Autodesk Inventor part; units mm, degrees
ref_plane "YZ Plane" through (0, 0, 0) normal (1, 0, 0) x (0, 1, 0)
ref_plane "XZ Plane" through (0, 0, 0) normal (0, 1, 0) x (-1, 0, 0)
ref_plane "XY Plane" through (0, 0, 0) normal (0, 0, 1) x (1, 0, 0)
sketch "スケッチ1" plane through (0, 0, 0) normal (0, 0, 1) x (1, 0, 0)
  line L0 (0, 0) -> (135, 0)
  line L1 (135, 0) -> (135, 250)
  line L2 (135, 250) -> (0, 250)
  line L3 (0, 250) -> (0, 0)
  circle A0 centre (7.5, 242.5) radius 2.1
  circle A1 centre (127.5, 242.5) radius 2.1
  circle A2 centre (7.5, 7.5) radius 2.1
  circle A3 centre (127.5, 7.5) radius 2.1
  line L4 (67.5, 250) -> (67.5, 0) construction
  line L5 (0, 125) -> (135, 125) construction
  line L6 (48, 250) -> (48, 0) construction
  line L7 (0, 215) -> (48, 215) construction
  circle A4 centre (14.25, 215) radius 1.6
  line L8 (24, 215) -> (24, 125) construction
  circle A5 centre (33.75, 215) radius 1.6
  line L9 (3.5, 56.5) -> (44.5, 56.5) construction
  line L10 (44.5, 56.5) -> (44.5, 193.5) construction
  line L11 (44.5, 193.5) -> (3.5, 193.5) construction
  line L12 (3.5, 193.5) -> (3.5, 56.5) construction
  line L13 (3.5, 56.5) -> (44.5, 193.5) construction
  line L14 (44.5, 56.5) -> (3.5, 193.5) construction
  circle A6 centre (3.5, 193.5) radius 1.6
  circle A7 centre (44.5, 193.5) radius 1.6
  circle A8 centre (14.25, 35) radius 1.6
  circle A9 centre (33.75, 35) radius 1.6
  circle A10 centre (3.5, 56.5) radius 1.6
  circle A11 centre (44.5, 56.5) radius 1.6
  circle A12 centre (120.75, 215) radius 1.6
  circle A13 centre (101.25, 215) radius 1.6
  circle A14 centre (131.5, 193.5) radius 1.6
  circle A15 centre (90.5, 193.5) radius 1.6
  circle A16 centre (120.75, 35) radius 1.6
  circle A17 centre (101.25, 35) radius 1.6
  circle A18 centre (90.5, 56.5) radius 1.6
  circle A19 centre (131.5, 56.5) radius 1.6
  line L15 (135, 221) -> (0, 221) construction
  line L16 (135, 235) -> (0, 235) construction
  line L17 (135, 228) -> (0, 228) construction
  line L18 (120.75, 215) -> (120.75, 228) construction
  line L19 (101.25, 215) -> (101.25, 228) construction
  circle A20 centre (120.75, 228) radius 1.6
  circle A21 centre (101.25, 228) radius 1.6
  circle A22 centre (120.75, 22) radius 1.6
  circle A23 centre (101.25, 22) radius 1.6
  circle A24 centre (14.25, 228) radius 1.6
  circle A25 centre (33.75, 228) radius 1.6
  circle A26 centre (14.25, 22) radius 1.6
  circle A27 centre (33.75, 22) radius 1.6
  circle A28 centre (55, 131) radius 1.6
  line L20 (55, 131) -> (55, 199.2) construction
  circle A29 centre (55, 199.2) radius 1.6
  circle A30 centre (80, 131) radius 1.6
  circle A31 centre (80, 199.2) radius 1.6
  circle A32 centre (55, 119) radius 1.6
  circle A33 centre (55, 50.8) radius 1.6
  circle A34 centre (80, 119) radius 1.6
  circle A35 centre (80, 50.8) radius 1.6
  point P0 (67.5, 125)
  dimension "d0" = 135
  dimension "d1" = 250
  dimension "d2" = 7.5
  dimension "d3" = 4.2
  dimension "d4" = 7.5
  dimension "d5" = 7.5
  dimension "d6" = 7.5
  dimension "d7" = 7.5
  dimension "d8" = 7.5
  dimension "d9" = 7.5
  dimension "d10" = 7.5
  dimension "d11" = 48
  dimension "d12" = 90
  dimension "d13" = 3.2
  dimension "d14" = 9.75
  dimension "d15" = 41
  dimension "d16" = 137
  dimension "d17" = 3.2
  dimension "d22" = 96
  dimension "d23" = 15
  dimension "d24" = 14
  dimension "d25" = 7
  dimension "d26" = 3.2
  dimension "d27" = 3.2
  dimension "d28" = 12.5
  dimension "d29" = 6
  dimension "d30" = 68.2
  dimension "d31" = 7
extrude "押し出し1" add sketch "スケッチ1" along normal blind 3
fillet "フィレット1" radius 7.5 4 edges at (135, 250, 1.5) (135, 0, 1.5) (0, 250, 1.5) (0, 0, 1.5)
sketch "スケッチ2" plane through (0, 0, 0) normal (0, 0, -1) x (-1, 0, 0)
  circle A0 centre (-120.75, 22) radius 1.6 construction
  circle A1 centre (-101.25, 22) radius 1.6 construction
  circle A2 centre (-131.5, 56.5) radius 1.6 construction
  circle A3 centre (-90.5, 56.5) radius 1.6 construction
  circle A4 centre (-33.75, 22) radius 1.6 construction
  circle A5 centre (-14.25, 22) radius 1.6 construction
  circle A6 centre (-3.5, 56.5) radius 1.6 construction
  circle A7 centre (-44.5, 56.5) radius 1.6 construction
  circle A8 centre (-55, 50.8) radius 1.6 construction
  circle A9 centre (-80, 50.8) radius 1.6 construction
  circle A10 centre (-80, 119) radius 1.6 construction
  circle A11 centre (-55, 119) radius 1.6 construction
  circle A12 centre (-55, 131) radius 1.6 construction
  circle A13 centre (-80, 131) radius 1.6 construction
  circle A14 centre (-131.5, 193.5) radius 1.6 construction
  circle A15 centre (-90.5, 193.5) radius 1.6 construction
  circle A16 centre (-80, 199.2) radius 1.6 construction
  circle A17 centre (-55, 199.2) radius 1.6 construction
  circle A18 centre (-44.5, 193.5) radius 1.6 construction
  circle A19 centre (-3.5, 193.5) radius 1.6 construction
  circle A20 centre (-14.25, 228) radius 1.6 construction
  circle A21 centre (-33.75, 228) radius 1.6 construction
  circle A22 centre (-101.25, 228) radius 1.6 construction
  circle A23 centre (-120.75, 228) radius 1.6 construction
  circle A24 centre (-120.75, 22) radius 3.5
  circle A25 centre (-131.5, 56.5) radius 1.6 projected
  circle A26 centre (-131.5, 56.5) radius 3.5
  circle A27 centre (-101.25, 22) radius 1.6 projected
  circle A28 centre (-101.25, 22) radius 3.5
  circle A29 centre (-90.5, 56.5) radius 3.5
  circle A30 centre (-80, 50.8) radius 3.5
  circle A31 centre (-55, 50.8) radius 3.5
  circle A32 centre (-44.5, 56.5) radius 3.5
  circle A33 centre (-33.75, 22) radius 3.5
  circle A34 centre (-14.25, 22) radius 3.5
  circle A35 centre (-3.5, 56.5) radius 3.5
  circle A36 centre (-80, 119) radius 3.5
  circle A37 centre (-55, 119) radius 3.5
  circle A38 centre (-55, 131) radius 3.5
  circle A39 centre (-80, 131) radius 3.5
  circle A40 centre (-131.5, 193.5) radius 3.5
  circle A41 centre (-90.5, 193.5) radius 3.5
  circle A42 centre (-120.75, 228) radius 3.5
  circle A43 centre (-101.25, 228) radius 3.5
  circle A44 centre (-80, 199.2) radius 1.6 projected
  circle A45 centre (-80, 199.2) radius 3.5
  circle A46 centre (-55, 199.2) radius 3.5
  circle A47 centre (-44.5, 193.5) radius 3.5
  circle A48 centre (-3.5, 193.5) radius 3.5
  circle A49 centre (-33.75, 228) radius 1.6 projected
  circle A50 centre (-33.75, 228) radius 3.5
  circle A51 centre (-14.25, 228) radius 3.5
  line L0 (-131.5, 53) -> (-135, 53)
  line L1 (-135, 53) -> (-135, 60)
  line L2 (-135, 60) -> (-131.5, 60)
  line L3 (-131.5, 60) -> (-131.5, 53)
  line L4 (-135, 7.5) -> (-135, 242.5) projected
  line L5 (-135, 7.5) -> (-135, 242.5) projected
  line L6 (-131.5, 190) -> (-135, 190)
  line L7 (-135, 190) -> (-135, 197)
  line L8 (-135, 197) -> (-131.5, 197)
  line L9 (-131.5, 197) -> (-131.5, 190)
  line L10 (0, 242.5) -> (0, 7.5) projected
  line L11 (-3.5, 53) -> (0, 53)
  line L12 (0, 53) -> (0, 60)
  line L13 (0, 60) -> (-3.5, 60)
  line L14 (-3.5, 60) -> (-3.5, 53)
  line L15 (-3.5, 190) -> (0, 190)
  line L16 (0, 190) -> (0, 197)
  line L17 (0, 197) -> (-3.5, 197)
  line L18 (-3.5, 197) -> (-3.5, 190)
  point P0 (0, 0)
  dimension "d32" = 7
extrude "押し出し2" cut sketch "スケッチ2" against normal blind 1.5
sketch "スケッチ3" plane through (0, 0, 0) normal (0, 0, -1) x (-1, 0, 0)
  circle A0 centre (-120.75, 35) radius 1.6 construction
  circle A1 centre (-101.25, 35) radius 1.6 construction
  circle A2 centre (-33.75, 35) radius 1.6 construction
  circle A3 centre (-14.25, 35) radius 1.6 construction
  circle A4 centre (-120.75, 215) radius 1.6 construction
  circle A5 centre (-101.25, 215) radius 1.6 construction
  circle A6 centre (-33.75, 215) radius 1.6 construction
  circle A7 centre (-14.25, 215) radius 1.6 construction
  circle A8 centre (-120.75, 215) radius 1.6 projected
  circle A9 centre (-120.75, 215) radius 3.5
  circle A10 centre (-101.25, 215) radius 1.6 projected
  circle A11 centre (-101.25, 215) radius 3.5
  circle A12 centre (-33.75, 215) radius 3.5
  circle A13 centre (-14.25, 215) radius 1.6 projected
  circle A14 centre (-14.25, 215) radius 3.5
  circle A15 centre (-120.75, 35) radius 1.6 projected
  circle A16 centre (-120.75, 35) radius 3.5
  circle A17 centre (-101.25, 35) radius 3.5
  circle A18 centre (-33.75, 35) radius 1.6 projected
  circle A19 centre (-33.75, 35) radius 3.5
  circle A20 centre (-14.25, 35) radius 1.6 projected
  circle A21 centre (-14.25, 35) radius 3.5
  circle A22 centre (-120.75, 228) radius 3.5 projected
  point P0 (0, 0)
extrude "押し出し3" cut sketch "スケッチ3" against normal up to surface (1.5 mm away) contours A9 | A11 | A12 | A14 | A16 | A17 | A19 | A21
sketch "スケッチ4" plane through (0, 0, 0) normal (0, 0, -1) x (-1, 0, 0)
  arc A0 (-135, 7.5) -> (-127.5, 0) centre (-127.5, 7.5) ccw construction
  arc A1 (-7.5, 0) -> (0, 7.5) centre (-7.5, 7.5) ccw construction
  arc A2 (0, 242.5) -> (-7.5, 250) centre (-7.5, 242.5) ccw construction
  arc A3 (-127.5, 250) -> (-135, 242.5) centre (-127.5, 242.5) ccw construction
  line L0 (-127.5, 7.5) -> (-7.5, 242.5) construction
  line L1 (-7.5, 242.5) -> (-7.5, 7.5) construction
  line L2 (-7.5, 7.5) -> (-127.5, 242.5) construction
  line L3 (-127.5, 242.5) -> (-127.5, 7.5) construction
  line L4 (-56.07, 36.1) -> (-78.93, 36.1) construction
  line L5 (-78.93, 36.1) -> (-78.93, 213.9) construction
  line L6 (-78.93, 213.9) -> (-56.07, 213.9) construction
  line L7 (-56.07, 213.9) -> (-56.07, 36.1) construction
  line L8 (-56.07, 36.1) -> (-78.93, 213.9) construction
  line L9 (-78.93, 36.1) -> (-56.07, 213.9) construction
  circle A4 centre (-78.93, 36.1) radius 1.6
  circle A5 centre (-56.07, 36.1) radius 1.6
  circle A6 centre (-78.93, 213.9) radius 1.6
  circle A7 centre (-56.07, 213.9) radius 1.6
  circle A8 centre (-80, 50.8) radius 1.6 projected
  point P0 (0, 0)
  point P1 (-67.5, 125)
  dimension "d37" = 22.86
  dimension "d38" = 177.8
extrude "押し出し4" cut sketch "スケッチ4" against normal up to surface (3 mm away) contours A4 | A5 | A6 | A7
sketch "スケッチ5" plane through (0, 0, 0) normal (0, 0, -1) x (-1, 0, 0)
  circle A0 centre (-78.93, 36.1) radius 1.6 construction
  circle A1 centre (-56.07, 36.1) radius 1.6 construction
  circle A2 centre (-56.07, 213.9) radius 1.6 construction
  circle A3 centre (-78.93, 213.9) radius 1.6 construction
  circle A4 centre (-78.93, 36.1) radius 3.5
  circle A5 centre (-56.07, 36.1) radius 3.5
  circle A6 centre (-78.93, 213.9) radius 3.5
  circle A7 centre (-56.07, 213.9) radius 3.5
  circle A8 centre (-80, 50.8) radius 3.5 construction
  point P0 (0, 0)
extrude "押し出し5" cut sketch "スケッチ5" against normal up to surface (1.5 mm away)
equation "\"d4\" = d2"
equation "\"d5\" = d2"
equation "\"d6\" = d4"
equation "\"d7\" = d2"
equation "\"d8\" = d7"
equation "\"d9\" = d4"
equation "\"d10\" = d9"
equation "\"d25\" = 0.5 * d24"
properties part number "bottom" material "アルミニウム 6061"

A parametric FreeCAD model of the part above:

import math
import FreeCAD as App
import Part
import Sketcher
Q = App.Units.Quantity


def edges_at(feature, points):
    """Names of the edges that pass closest to the given points."""
    edges = feature.Shape.Edges
    near = lambda p: min(range(len(edges)), key=lambda i: edges[i].distToShape(Part.Vertex(*p))[0])
    return sorted({f"Edge{near(p) + 1}" for p in points})

doc = App.newDocument("Part")
body = doc.addObject("PartDesign::Body", "Body")

# Sketch on XY plane
sketch1 = body.newObject("Sketcher::SketchObject", "Sketch")
sketch1.AttachmentSupport = (doc.getObject("XY_Plane"), [""])
sketch1.MapMode = "FlatFace"
sketch1.addGeometry(Part.LineSegment(App.Vector(0, 250, 0), App.Vector(0, 0, 0)), False)
sketch1.addGeometry(Part.LineSegment(App.Vector(0, 0, 0), App.Vector(135, 0, 0)), False)
sketch1.addGeometry(Part.LineSegment(App.Vector(135, 0, 0), App.Vector(135, 250, 0)), False)
sketch1.addGeometry(Part.LineSegment(App.Vector(135, 250, 0), App.Vector(0, 250, 0)), False)
sketch1.addGeometry(Part.Circle(App.Vector(7.5, 7.5, 0), App.Vector(0, 0, 1), 2.1), False)
sketch1.addGeometry(Part.Circle(App.Vector(14.2, 22, 0), App.Vector(0, 0, 1), 1.6), False)
sketch1.addGeometry(Part.Circle(App.Vector(14.2, 35, 0), App.Vector(0, 0, 1), 1.6), False)
sketch1.addGeometry(Part.Circle(App.Vector(3.5, 56.5, 0), App.Vector(0, 0, 1), 1.6), False)
sketch1.addGeometry(Part.Circle(App.Vector(33.8, 22, 0), App.Vector(0, 0, 1), 1.6), False)
sketch1.addGeometry(Part.Circle(App.Vector(33.8, 35, 0), App.Vector(0, 0, 1), 1.6), False)
sketch1.addGeometry(Part.Circle(App.Vector(44.5, 56.5, 0), App.Vector(0, 0, 1), 1.6), False)
sketch1.addGeometry(Part.Circle(App.Vector(55, 50.8, 0), App.Vector(0, 0, 1), 1.6), False)
sketch1.addGeometry(Part.Circle(App.Vector(55, 119, 0), App.Vector(0, 0, 1), 1.6), False)
sketch1.addGeometry(Part.Circle(App.Vector(80, 50.8, 0), App.Vector(0, 0, 1), 1.6), False)
sketch1.addGeometry(Part.Circle(App.Vector(90.5, 56.5, 0), App.Vector(0, 0, 1), 1.6), False)
sketch1.addGeometry(Part.Circle(App.Vector(101.2, 22, 0), App.Vector(0, 0, 1), 1.6), False)
sketch1.addGeometry(Part.Circle(App.Vector(127.5, 7.5, 0), App.Vector(0, 0, 1), 2.1), False)
sketch1.addGeometry(Part.Circle(App.Vector(120.8, 22, 0), App.Vector(0, 0, 1), 1.6), False)
sketch1.addGeometry(Part.Circle(App.Vector(101.2, 35, 0), App.Vector(0, 0, 1), 1.6), False)
sketch1.addGeometry(Part.Circle(App.Vector(120.8, 35, 0), App.Vector(0, 0, 1), 1.6), False)
sketch1.addGeometry(Part.Circle(App.Vector(131.5, 56.5, 0), App.Vector(0, 0, 1), 1.6), False)
sketch1.addGeometry(Part.Circle(App.Vector(80, 119, 0), App.Vector(0, 0, 1), 1.6), False)
sketch1.addGeometry(Part.Circle(App.Vector(55, 131, 0), App.Vector(0, 0, 1), 1.6), False)
sketch1.addGeometry(Part.Circle(App.Vector(3.5, 193.5, 0), App.Vector(0, 0, 1), 1.6), False)
sketch1.addGeometry(Part.Circle(App.Vector(14.2, 215, 0), App.Vector(0, 0, 1), 1.6), False)
sketch1.addGeometry(Part.Circle(App.Vector(14.2, 228, 0), App.Vector(0, 0, 1), 1.6), False)
sketch1.addGeometry(Part.Circle(App.Vector(7.5, 242.5, 0), App.Vector(0, 0, 1), 2.1), False)
sketch1.addGeometry(Part.Circle(App.Vector(44.5, 193.5, 0), App.Vector(0, 0, 1), 1.6), False)
sketch1.addGeometry(Part.Circle(App.Vector(33.8, 215, 0), App.Vector(0, 0, 1), 1.6), False)
sketch1.addGeometry(Part.Circle(App.Vector(55, 199.2, 0), App.Vector(0, 0, 1), 1.6), False)
sketch1.addGeometry(Part.Circle(App.Vector(33.8, 228, 0), App.Vector(0, 0, 1), 1.6), False)
sketch1.addGeometry(Part.Circle(App.Vector(80, 131, 0), App.Vector(0, 0, 1), 1.6), False)
sketch1.addGeometry(Part.Circle(App.Vector(80, 199.2, 0), App.Vector(0, 0, 1), 1.6), False)
sketch1.addGeometry(Part.Circle(App.Vector(90.5, 193.5, 0), App.Vector(0, 0, 1), 1.6), False)
sketch1.addGeometry(Part.Circle(App.Vector(101.2, 215, 0), App.Vector(0, 0, 1), 1.6), False)
sketch1.addGeometry(Part.Circle(App.Vector(131.5, 193.5, 0), App.Vector(0, 0, 1), 1.6), False)
sketch1.addGeometry(Part.Circle(App.Vector(120.8, 215, 0), App.Vector(0, 0, 1), 1.6), False)
sketch1.addGeometry(Part.Circle(App.Vector(101.2, 228, 0), App.Vector(0, 0, 1), 1.6), False)
sketch1.addGeometry(Part.Circle(App.Vector(120.8, 228, 0), App.Vector(0, 0, 1), 1.6), False)
sketch1.addGeometry(Part.Circle(App.Vector(127.5, 242.5, 0), App.Vector(0, 0, 1), 2.1), False)
sketch1.addConstraint(Sketcher.Constraint("Coincident", 0, 2, 1, 1))
sketch1.addConstraint(Sketcher.Constraint("Coincident", 1, 2, 2, 1))
sketch1.addConstraint(Sketcher.Constraint("Coincident", 2, 2, 3, 1))
sketch1.addConstraint(Sketcher.Constraint("Coincident", 3, 2, 0, 1))
sketch1.addConstraint(Sketcher.Constraint("Vertical", 0))
sketch1.addConstraint(Sketcher.Constraint("Horizontal", 1))
sketch1.addConstraint(Sketcher.Constraint("Vertical", 2))
sketch1.addConstraint(Sketcher.Constraint("Horizontal", 3))
sketch1.addConstraint(Sketcher.Constraint("Coincident", 0, 2, -1, 1))
sketch1.addConstraint(Sketcher.Constraint("Equal", 5, 6))
sketch1.addConstraint(Sketcher.Constraint("Equal", 6, 7))
sketch1.addConstraint(Sketcher.Constraint("Equal", 7, 8))
sketch1.addConstraint(Sketcher.Constraint("Equal", 8, 9))
sketch1.addConstraint(Sketcher.Constraint("Equal", 9, 10))
sketch1.addConstraint(Sketcher.Constraint("Equal", 10, 11))
sketch1.addConstraint(Sketcher.Constraint("Equal", 11, 12))
sketch1.addConstraint(Sketcher.Constraint("Equal", 12, 13))
sketch1.addConstraint(Sketcher.Constraint("Equal", 13, 14))
sketch1.addConstraint(Sketcher.Constraint("Equal", 14, 15))
sketch1.addConstraint(Sketcher.Constraint("Equal", 4, 16))
sketch1.addConstraint(Sketcher.Constraint("Equal", 15, 17))
sketch1.addConstraint(Sketcher.Constraint("Equal", 17, 18))
sketch1.addConstraint(Sketcher.Constraint("Equal", 18, 19))
sketch1.addConstraint(Sketcher.Constraint("Equal", 19, 20))
sketch1.addConstraint(Sketcher.Constraint("Equal", 20, 21))
sketch1.addConstraint(Sketcher.Constraint("Equal", 21, 22))
sketch1.addConstraint(Sketcher.Constraint("Equal", 22, 23))
sketch1.addConstraint(Sketcher.Constraint("Equal", 23, 24))
sketch1.addConstraint(Sketcher.Constraint("Equal", 24, 25))
sketch1.addConstraint(Sketcher.Constraint("Equal", 16, 26))
sketch1.addConstraint(Sketcher.Constraint("Equal", 25, 27))
sketch1.addConstraint(Sketcher.Constraint("Equal", 27, 28))
sketch1.addConstraint(Sketcher.Constraint("Equal", 28, 29))
sketch1.addConstraint(Sketcher.Constraint("Equal", 29, 30))
sketch1.addConstraint(Sketcher.Constraint("Equal", 30, 31))
sketch1.addConstraint(Sketcher.Constraint("Equal", 31, 32))
sketch1.addConstraint(Sketcher.Constraint("Equal", 32, 33))
sketch1.addConstraint(Sketcher.Constraint("Equal", 33, 34))
sketch1.addConstraint(Sketcher.Constraint("Equal", 34, 35))
sketch1.addConstraint(Sketcher.Constraint("Equal", 35, 36))
sketch1.addConstraint(Sketcher.Constraint("Equal", 36, 37))
sketch1.addConstraint(Sketcher.Constraint("Equal", 37, 38))
sketch1.addConstraint(Sketcher.Constraint("Equal", 26, 39))
sketch1.addConstraint(Sketcher.Constraint("Horizontal", 5, 3, 8, 3))
sketch1.addConstraint(Sketcher.Constraint("Horizontal", 6, 3, 9, 3))
sketch1.addConstraint(Sketcher.Constraint("Horizontal", 7, 3, 10, 3))
sketch1.addConstraint(Sketcher.Constraint("Horizontal", 11, 3, 13, 3))
sketch1.addConstraint(Sketcher.Constraint("Horizontal", 10, 3, 14, 3))
sketch1.addConstraint(Sketcher.Constraint("Horizontal", 8, 3, 15, 3))
sketch1.addConstraint(Sketcher.Constraint("Horizontal", 4, 3, 16, 3))
sketch1.addConstraint(Sketcher.Constraint("Horizontal", 15, 3, 17, 3))
sketch1.addConstraint(Sketcher.Constraint("Horizontal", 9, 3, 18, 3))
sketch1.addConstraint(Sketcher.Constraint("Horizontal", 18, 3, 19, 3))
sketch1.addConstraint(Sketcher.Constraint("Horizontal", 14, 3, 20, 3))
sketch1.addConstraint(Sketcher.Constraint("Horizontal", 12, 3, 21, 3))
sketch1.addConstraint(Sketcher.Constraint("Horizontal", 23, 3, 27, 3))
sketch1.addConstraint(Sketcher.Constraint("Horizontal", 24, 3, 28, 3))
sketch1.addConstraint(Sketcher.Constraint("Horizontal", 25, 3, 30, 3))
sketch1.addConstraint(Sketcher.Constraint("Horizontal", 22, 3, 31, 3))
sketch1.addConstraint(Sketcher.Constraint("Horizontal", 29, 3, 32, 3))
sketch1.addConstraint(Sketcher.Constraint("Horizontal", 27, 3, 33, 3))
sketch1.addConstraint(Sketcher.Constraint("Horizontal", 28, 3, 34, 3))
sketch1.addConstraint(Sketcher.Constraint("Horizontal", 33, 3, 35, 3))
sketch1.addConstraint(Sketcher.Constraint("Horizontal", 34, 3, 36, 3))
sketch1.addConstraint(Sketcher.Constraint("Horizontal", 30, 3, 37, 3))
sketch1.addConstraint(Sketcher.Constraint("Horizontal", 37, 3, 38, 3))
sketch1.addConstraint(Sketcher.Constraint("Horizontal", 26, 3, 39, 3))
sketch1.addConstraint(Sketcher.Constraint("Vertical", 5, 3, 6, 3))
sketch1.addConstraint(Sketcher.Constraint("Vertical", 8, 3, 9, 3))
sketch1.addConstraint(Sketcher.Constraint("Vertical", 11, 3, 12, 3))
sketch1.addConstraint(Sketcher.Constraint("Vertical", 15, 3, 18, 3))
sketch1.addConstraint(Sketcher.Constraint("Vertical", 17, 3, 19, 3))
sketch1.addConstraint(Sketcher.Constraint("Vertical", 13, 3, 21, 3))
sketch1.addConstraint(Sketcher.Constraint("Vertical", 12, 3, 22, 3))
sketch1.addConstraint(Sketcher.Constraint("Vertical", 7, 3, 23, 3))
sketch1.addConstraint(Sketcher.Constraint("Vertical", 6, 3, 24, 3))
sketch1.addConstraint(Sketcher.Constraint("Vertical", 24, 3, 25, 3))
sketch1.addConstraint(Sketcher.Constraint("Vertical", 4, 3, 26, 3))
sketch1.addConstraint(Sketcher.Constraint("Vertical", 10, 3, 27, 3))
sketch1.addConstraint(Sketcher.Constraint("Vertical", 9, 3, 28, 3))
sketch1.addConstraint(Sketcher.Constraint("Vertical", 22, 3, 29, 3))
sketch1.addConstraint(Sketcher.Constraint("Vertical", 28, 3, 30, 3))
sketch1.addConstraint(Sketcher.Constraint("Vertical", 21, 3, 31, 3))
sketch1.addConstraint(Sketcher.Constraint("Vertical", 31, 3, 32, 3))
sketch1.addConstraint(Sketcher.Constraint("Vertical", 14, 3, 33, 3))
sketch1.addConstraint(Sketcher.Constraint("Vertical", 18, 3, 34, 3))
sketch1.addConstraint(Sketcher.Constraint("Vertical", 20, 3, 35, 3))
sketch1.addConstraint(Sketcher.Constraint("Vertical", 19, 3, 36, 3))
sketch1.addConstraint(Sketcher.Constraint("Vertical", 34, 3, 37, 3))
sketch1.addConstraint(Sketcher.Constraint("Vertical", 36, 3, 38, 3))
sketch1.addConstraint(Sketcher.Constraint("Vertical", 16, 3, 39, 3))
sketch1.addConstraint(Sketcher.Constraint("Diameter", 4, Q("4.2 mm")))
sketch1.addConstraint(Sketcher.Constraint("Diameter", 5, Q("3.2 mm")))
sketch1.addConstraint(Sketcher.Constraint("DistanceX", 1, 1, 1, 2, Q("135 mm")))
sketch1.addConstraint(Sketcher.Constraint("DistanceY", 0, 2, 0, 1, Q("250 mm")))
sketch1.addConstraint(Sketcher.Constraint("DistanceX", 7, 3, 10, 3, Q("41 mm")))
sketch1.addConstraint(Sketcher.Constraint("DistanceX", 14, 3, 20, 3, Q("41 mm")))
sketch1.addConstraint(Sketcher.Constraint("DistanceY", 7, 3, 23, 3, Q("137 mm")))
sketch1.addConstraint(Sketcher.Constraint("DistanceY", 12, 3, 24, 3, Q("96 mm")))
sketch1.addConstraint(Sketcher.Constraint("DistanceX", -1, 1, 4, 3, Q("7.5 mm")))
sketch1.addConstraint(Sketcher.Constraint("DistanceY", -1, 1, 4, 3, Q("7.5 mm")))
sketch1.addConstraint(Sketcher.Constraint("DistanceY", 11, 3, 12, 3, Q("68.2 mm")))
sketch1.addConstraint(Sketcher.Constraint("DistanceY", 31, 3, 29, 3, Q("68.2 mm")))
sketch1.addConstraint(Sketcher.Constraint("DistanceX", 16, 3, 1, 2, Q("7.5 mm")))
sketch1.addConstraint(Sketcher.Constraint("DistanceY", 39, 3, 2, 2, Q("7.5 mm")))
sketch1.addConstraint(Sketcher.Constraint("DistanceY", -1, 1, 5, 3, Q("22 mm")))
sketch1.addConstraint(Sketcher.Constraint("DistanceY", -1, 1, 6, 3, Q("35 mm")))
sketch1.addConstraint(Sketcher.Constraint("DistanceX", -1, 1, 11, 3, Q("55 mm")))
sketch1.addConstraint(Sketcher.Constraint("DistanceY", -1, 1, 12, 3, Q("119 mm")))
sketch1.addConstraint(Sketcher.Constraint("DistanceX", -1, 1, 13, 3, Q("80 mm")))
sketch1.addConstraint(Sketcher.Constraint("DistanceY", -1, 1, 22, 3, Q("131 mm")))
sketch1.addConstraint(Sketcher.Constraint("DistanceY", -1, 1, 25, 3, Q("228 mm")))
sketch1.addConstraint(Sketcher.Constraint("DistanceX", 7, 3, 4, 3, Q("4 mm")))
sketch1.addConstraint(Sketcher.Constraint("DistanceY", 4, 3, 7, 3, Q("49 mm")))
sketch1.addConstraint(Sketcher.Constraint("DistanceX", 10, 3, 14, 3, Q("46 mm")))
sketch1.addConstraint(Sketcher.Constraint("DistanceX", 5, 3, 8, 3, Q("19.5 mm")))
sketch1.addConstraint(Sketcher.Constraint("DistanceX", 8, 3, 15, 3, Q("67.5 mm")))
sketch1.addConstraint(Sketcher.Constraint("DistanceX", 15, 3, 17, 3, Q("19.5 mm")))
sketch1.addConstraint(Sketcher.Constraint("DistanceX", -1, 1, 5, 3, Q("14.25 mm")))
pad1 = body.newObject("PartDesign::Pad", "Pad")
pad1.Profile = sketch1
pad1.Length = 3
doc.recompute()

fillet = body.newObject("PartDesign::Fillet", "Fillet")
fillet.Base = (pad1, edges_at(pad1, [
    (135, 250, 1.5),
    (135, 0, 1.5),
    (0, 250, 1.5),
    (0, 0, 1.5),
]))
fillet.Radius = 7.5

# Sketch on XY plane
sketch2 = body.newObject("Sketcher::SketchObject", "Sketch001")
sketch2.AttachmentSupport = (doc.getObject("XY_Plane"), [""])
sketch2.MapMode = "FlatFace"
sketch2.addGeometry(Part.Circle(App.Vector(120.8, 22, 0), App.Vector(0, 0, 1), 3.5), False)
sketch2.addGeometry(Part.LineSegment(App.Vector(131.5, 60, 0), App.Vector(135, 60, 0)), False)
sketch2.addGeometry(Part.LineSegment(App.Vector(135, 60, 0), App.Vector(135, 53, 0)), False)
sketch2.addGeometry(Part.LineSegment(App.Vector(135, 53, 0), App.Vector(131.5, 53, 0)), False)
sketch2.addGeometry(Part.ArcOfCircle(Part.Circle(App.Vector(131.5, 56.5, 0), App.Vector(0, 0, 1), 3.5), math.radians(90), math.radians(270)), False)
sketch2.addGeometry(Part.LineSegment(App.Vector(135, 190, 0), App.Vector(131.5, 190, 0)), False)
sketch2.addGeometry(Part.ArcOfCircle(Part.Circle(App.Vector(131.5, 193.5, 0), App.Vector(0, 0, 1), 3.5), math.radians(90), math.radians(270)), False)
sketch2.addGeometry(Part.LineSegment(App.Vector(131.5, 197, 0), App.Vector(135, 197, 0)), False)
sketch2.addGeometry(Part.LineSegment(App.Vector(135, 197, 0), App.Vector(135, 190, 0)), False)
sketch2.addGeometry(Part.Circle(App.Vector(101.2, 22, 0), App.Vector(0, 0, 1), 3.5), False)
sketch2.addGeometry(Part.Circle(App.Vector(101.2, 22, 0), App.Vector(0, 0, 1), 1.6), False)
sketch2.addGeometry(Part.Circle(App.Vector(90.5, 56.5, 0), App.Vector(0, 0, 1), 3.5), False)
sketch2.addGeometry(Part.Circle(App.Vector(80, 50.8, 0), App.Vector(0, 0, 1), 3.5), False)
sketch2.addGeometry(Part.Circle(App.Vector(55, 50.8, 0), App.Vector(0, 0, 1), 3.5), False)
sketch2.addGeometry(Part.Circle(App.Vector(44.5, 56.5, 0), App.Vector(0, 0, 1), 3.5), False)
sketch2.addGeometry(Part.Circle(App.Vector(33.8, 22, 0), App.Vector(0, 0, 1), 3.5), False)
sketch2.addGeometry(Part.Circle(App.Vector(14.2, 22, 0), App.Vector(0, 0, 1), 3.5), False)
sketch2.addGeometry(Part.LineSegment(App.Vector(0, 53, 0), App.Vector(0, 60, 0)), False)
sketch2.addGeometry(Part.LineSegment(App.Vector(0, 60, 0), App.Vector(3.5, 60, 0)), False)
sketch2.addGeometry(Part.ArcOfCircle(Part.Circle(App.Vector(3.5, 56.5, 0), App.Vector(0, 0, 1), 3.5), math.radians(-90), math.radians(90)), False)
sketch2.addGeometry(Part.LineSegment(App.Vector(3.5, 53, 0), App.Vector(0, 53, 0)), False)
sketch2.addGeometry(Part.LineSegment(App.Vector(3.5, 190, 0), App.Vector(0, 190, 0)), False)
sketch2.addGeometry(Part.LineSegment(App.Vector(0, 190, 0), App.Vector(0, 197, 0)), False)
sketch2.addGeometry(Part.LineSegment(App.Vector(0, 197, 0), App.Vector(3.5, 197, 0)), False)
sketch2.addGeometry(Part.ArcOfCircle(Part.Circle(App.Vector(3.5, 193.5, 0), App.Vector(0, 0, 1), 3.5), math.radians(-90), math.radians(90)), False)
sketch2.addGeometry(Part.Circle(App.Vector(80, 119, 0), App.Vector(0, 0, 1), 3.5), False)
sketch2.addGeometry(Part.Circle(App.Vector(55, 119, 0), App.Vector(0, 0, 1), 3.5), False)
sketch2.addGeometry(Part.Circle(App.Vector(55, 131, 0), App.Vector(0, 0, 1), 3.5), False)
sketch2.addGeometry(Part.Circle(App.Vector(80, 131, 0), App.Vector(0, 0, 1), 3.5), False)
sketch2.addGeometry(Part.Circle(App.Vector(90.5, 193.5, 0), App.Vector(0, 0, 1), 3.5), False)
sketch2.addGeometry(Part.Circle(App.Vector(120.8, 228, 0), App.Vector(0, 0, 1), 3.5), False)
sketch2.addGeometry(Part.Circle(App.Vector(101.2, 228, 0), App.Vector(0, 0, 1), 3.5), False)
sketch2.addGeometry(Part.Circle(App.Vector(80, 199.2, 0), App.Vector(0, 0, 1), 3.5), False)
sketch2.addGeometry(Part.Circle(App.Vector(80, 199.2, 0), App.Vector(0, 0, 1), 1.6), False)
sketch2.addGeometry(Part.Circle(App.Vector(55, 199.2, 0), App.Vector(0, 0, 1), 3.5), False)
sketch2.addGeometry(Part.Circle(App.Vector(44.5, 193.5, 0), App.Vector(0, 0, 1), 3.5), False)
sketch2.addGeometry(Part.Circle(App.Vector(33.8, 228, 0), App.Vector(0, 0, 1), 3.5), False)
sketch2.addGeometry(Part.Circle(App.Vector(33.8, 228, 0), App.Vector(0, 0, 1), 1.6), False)
sketch2.addGeometry(Part.Circle(App.Vector(14.2, 228, 0), App.Vector(0, 0, 1), 3.5), False)
sketch2.addConstraint(Sketcher.Constraint("Coincident", 1, 2, 2, 1))
sketch2.addConstraint(Sketcher.Constraint("Coincident", 2, 2, 3, 1))
sketch2.addConstraint(Sketcher.Constraint("Tangent", 3, 2, 4, 2))
sketch2.addConstraint(Sketcher.Constraint("Tangent", 4, 1, 1, 1))
sketch2.addConstraint(Sketcher.Constraint("Tangent", 5, 2, 6, 2))
sketch2.addConstraint(Sketcher.Constraint("Tangent", 6, 1, 7, 1))
sketch2.addConstraint(Sketcher.Constraint("Coincident", 7, 2, 8, 1))
sketch2.addConstraint(Sketcher.Constraint("Coincident", 8, 2, 5, 1))
sketch2.addConstraint(Sketcher.Constraint("Coincident", 17, 2, 18, 1))
sketch2.addConstraint(Sketcher.Constraint("Tangent", 18, 2, 19, 2))
sketch2.addConstraint(Sketcher.Constraint("Tangent", 19, 1, 20, 1))
sketch2.addConstraint(Sketcher.Constraint("Coincident", 20, 2, 17, 1))
sketch2.addConstraint(Sketcher.Constraint("Coincident", 21, 2, 22, 1))
sketch2.addConstraint(Sketcher.Constraint("Coincident", 22, 2, 23, 1))
sketch2.addConstraint(Sketcher.Constraint("Tangent", 23, 2, 24, 2))
sketch2.addConstraint(Sketcher.Constraint("Tangent", 24, 1, 21, 1))
sketch2.addConstraint(Sketcher.Constraint("Horizontal", 1))
sketch2.addConstraint(Sketcher.Constraint("Vertical", 2))
sketch2.addConstraint(Sketcher.Constraint("Horizontal", 3))
sketch2.addConstraint(Sketcher.Constraint("Horizontal", 5))
sketch2.addConstraint(Sketcher.Constraint("Horizontal", 7))
sketch2.addConstraint(Sketcher.Constraint("Vertical", 8))
sketch2.addConstraint(Sketcher.Constraint("Vertical", 17))
sketch2.addConstraint(Sketcher.Constraint("Horizontal", 18))
sketch2.addConstraint(Sketcher.Constraint("Horizontal", 20))
sketch2.addConstraint(Sketcher.Constraint("Horizontal", 21))
sketch2.addConstraint(Sketcher.Constraint("Vertical", 22))
sketch2.addConstraint(Sketcher.Constraint("Horizontal", 23))
sketch2.addConstraint(Sketcher.Constraint("Coincident", 10, 3, 9, 3))
sketch2.addConstraint(Sketcher.Constraint("Coincident", 33, 3, 32, 3))
sketch2.addConstraint(Sketcher.Constraint("Coincident", 37, 3, 36, 3))
sketch2.addConstraint(Sketcher.Constraint("Equal", 0, 4))
sketch2.addConstraint(Sketcher.Constraint("Equal", 4, 6))
sketch2.addConstraint(Sketcher.Constraint("Equal", 6, 9))
sketch2.addConstraint(Sketcher.Constraint("Equal", 9, 11))
sketch2.addConstraint(Sketcher.Constraint("Equal", 11, 12))
sketch2.addConstraint(Sketcher.Constraint("Equal", 12, 13))
sketch2.addConstraint(Sketcher.Constraint("Equal", 13, 14))
sketch2.addConstraint(Sketcher.Constraint("Equal", 14, 15))
sketch2.addConstraint(Sketcher.Constraint("Equal", 15, 16))
sketch2.addConstraint(Sketcher.Constraint("Equal", 16, 19))
sketch2.addConstraint(Sketcher.Constraint("Equal", 19, 24))
sketch2.addConstraint(Sketcher.Constraint("Equal", 24, 25))
sketch2.addConstraint(Sketcher.Constraint("Equal", 25, 26))
sketch2.addConstraint(Sketcher.Constraint("Equal", 26, 27))
sketch2.addConstraint(Sketcher.Constraint("Equal", 27, 28))
sketch2.addConstraint(Sketcher.Constraint("Equal", 28, 29))
sketch2.addConstraint(Sketcher.Constraint("Equal", 29, 30))
sketch2.addConstraint(Sketcher.Constraint("Equal", 30, 31))
sketch2.addConstraint(Sketcher.Constraint("Equal", 31, 32))
sketch2.addConstraint(Sketcher.Constraint("Equal", 10, 33))
sketch2.addConstraint(Sketcher.Constraint("Equal", 32, 34))
sketch2.addConstraint(Sketcher.Constraint("Equal", 34, 35))
sketch2.addConstraint(Sketcher.Constraint("Equal", 35, 36))
sketch2.addConstraint(Sketcher.Constraint("Equal", 33, 37))
sketch2.addConstraint(Sketcher.Constraint("Equal", 36, 38))
sketch2.addConstraint(Sketcher.Constraint("PointOnObject", 17, 2, -2))
sketch2.addConstraint(Sketcher.Constraint("PointOnObject", 21, 2, -2))
sketch2.addConstraint(Sketcher.Constraint("Horizontal", 0, 3, 9, 3))
sketch2.addConstraint(Sketcher.Constraint("Horizontal", 4, 3, 11, 3))
sketch2.addConstraint(Sketcher.Constraint("Horizontal", 12, 3, 13, 3))
sketch2.addConstraint(Sketcher.Constraint("Horizontal", 11, 3, 14, 3))
sketch2.addConstraint(Sketcher.Constraint("Horizontal", 10, 3, 15, 3))
sketch2.addConstraint(Sketcher.Constraint("Horizontal", 15, 3, 16, 3))
sketch2.addConstraint(Sketcher.Constraint("Horizontal", 14, 3, 19, 3))
sketch2.addConstraint(Sketcher.Constraint("Horizontal", 6, 3, 24, 3))
sketch2.addConstraint(Sketcher.Constraint("Horizontal", 25, 3, 26, 3))
sketch2.addConstraint(Sketcher.Constraint("Horizontal", 27, 3, 28, 3))
sketch2.addConstraint(Sketcher.Constraint("Horizontal", 24, 3, 29, 3))
sketch2.addConstraint(Sketcher.Constraint("Horizontal", 30, 3, 31, 3))
sketch2.addConstraint(Sketcher.Constraint("Horizontal", 33, 3, 34, 3))
sketch2.addConstraint(Sketcher.Constraint("Horizontal", 29, 3, 35, 3))
sketch2.addConstraint(Sketcher.Constraint("Horizontal", 31, 3, 36, 3))
sketch2.addConstraint(Sketcher.Constraint("Horizontal", 37, 3, 38, 3))
sketch2.addConstraint(Sketcher.Constraint("Vertical", 4, 3, 6, 3))
sketch2.addConstraint(Sketcher.Constraint("Vertical", 19, 3, 24, 3))
sketch2.addConstraint(Sketcher.Constraint("Vertical", 12, 3, 25, 3))
sketch2.addConstraint(Sketcher.Constraint("Vertical", 13, 3, 26, 3))
sketch2.addConstraint(Sketcher.Constraint("Vertical", 26, 3, 27, 3))
sketch2.addConstraint(Sketcher.Constraint("Vertical", 25, 3, 28, 3))
sketch2.addConstraint(Sketcher.Constraint("Vertical", 11, 3, 29, 3))
sketch2.addConstraint(Sketcher.Constraint("Vertical", 0, 3, 30, 3))
sketch2.addConstraint(Sketcher.Constraint("Vertical", 10, 3, 31, 3))
sketch2.addConstraint(Sketcher.Constraint("Vertical", 28, 3, 32, 3))
sketch2.addConstraint(Sketcher.Constraint("Vertical", 27, 3, 34, 3))
sketch2.addConstraint(Sketcher.Constraint("Vertical", 14, 3, 35, 3))
sketch2.addConstraint(Sketcher.Constraint("Vertical", 15, 3, 36, 3))
sketch2.addConstraint(Sketcher.Constraint("Vertical", 16, 3, 38, 3))
sketch2.addConstraint(Sketcher.Constraint("Vertical", 2, 2, 7, 2))
sketch2.addConstraint(Sketcher.Constraint("Equal", 7, 18))
sketch2.addConstraint(Sketcher.Constraint("Diameter", 0, Q("7 mm")))
sketch2.addConstraint(Sketcher.Constraint("Diameter", 10, Q("3.2 mm")))
sketch2.addConstraint(Sketcher.Constraint("DistanceX", 1, 1, 1, 2, Q("3.5 mm")))
sketch2.addConstraint(Sketcher.Constraint("DistanceY", -1, 1, 0, 3, Q("22 mm")))
sketch2.addConstraint(Sketcher.Constraint("DistanceX", -1, 1, 12, 3, Q("80 mm")))
sketch2.addConstraint(Sketcher.Constraint("DistanceX", -1, 1, 13, 3, Q("55 mm")))
sketch2.addConstraint(Sketcher.Constraint("DistanceY", -1, 1, 25, 3, Q("119 mm")))
sketch2.addConstraint(Sketcher.Constraint("DistanceY", -1, 1, 27, 3, Q("131 mm")))
sketch2.addConstraint(Sketcher.Constraint("DistanceY", -1, 1, 30, 3, Q("228 mm")))
sketch2.addConstraint(Sketcher.Constraint("DistanceX", -1, 1, 1, 2, Q("135 mm")))
sketch2.addConstraint(Sketcher.Constraint("DistanceY", -1, 1, 1, 2, Q("60 mm")))
sketch2.addConstraint(Sketcher.Constraint("DistanceY", -1, 1, 5, 2, Q("190 mm")))
sketch2.addConstraint(Sketcher.Constraint("DistanceX", 11, 3, 4, 3, Q("41 mm")))
sketch2.addConstraint(Sketcher.Constraint("DistanceX", 14, 3, 11, 3, Q("46 mm")))
sketch2.addConstraint(Sketcher.Constraint("DistanceY", -1, 1, 12, 3, Q("50.8 mm")))
sketch2.addConstraint(Sketcher.Constraint("DistanceY", -1, 1, 32, 3, Q("199.2 mm")))
sketch2.addConstraint(Sketcher.Constraint("DistanceX", 9, 3, 0, 3, Q("19.5 mm")))
sketch2.addConstraint(Sketcher.Constraint("DistanceX", 15, 3, 9, 3, Q("67.5 mm")))
sketch2.addConstraint(Sketcher.Constraint("DistanceX", 16, 3, 15, 3, Q("19.5 mm")))
sketch2.addConstraint(Sketcher.Constraint("DistanceX", -1, 1, 0, 3, Q("120.75 mm")))
pocket1 = body.newObject("PartDesign::Pocket", "Pocket")
pocket1.Profile = sketch2
pocket1.Length = 1.5
pocket1.Reversed = True

# Sketch on XY plane
sketch3 = body.newObject("Sketcher::SketchObject", "Sketch002")
sketch3.AttachmentSupport = (doc.getObject("XY_Plane"), [""])
sketch3.MapMode = "FlatFace"
sketch3.addGeometry(Part.Circle(App.Vector(120.8, 215, 0), App.Vector(0, 0, 1), 3.5), False)
sketch3.addGeometry(Part.Circle(App.Vector(120.8, 215, 0), App.Vector(0, 0, 1), 1.6), False)
sketch3.addGeometry(Part.Circle(App.Vector(101.2, 215, 0), App.Vector(0, 0, 1), 3.5), False)
sketch3.addGeometry(Part.Circle(App.Vector(101.2, 215, 0), App.Vector(0, 0, 1), 1.6), False)
sketch3.addGeometry(Part.Circle(App.Vector(33.8, 215, 0), App.Vector(0, 0, 1), 3.5), False)
sketch3.addGeometry(Part.Circle(App.Vector(14.2, 215, 0), App.Vector(0, 0, 1), 3.5), False)
sketch3.addGeometry(Part.Circle(App.Vector(14.2, 215, 0), App.Vector(0, 0, 1), 1.6), False)
sketch3.addGeometry(Part.Circle(App.Vector(120.8, 35, 0), App.Vector(0, 0, 1), 3.5), False)
sketch3.addGeometry(Part.Circle(App.Vector(120.8, 35, 0), App.Vector(0, 0, 1), 1.6), False)
sketch3.addGeometry(Part.Circle(App.Vector(101.2, 35, 0), App.Vector(0, 0, 1), 3.5), False)
sketch3.addGeometry(Part.Circle(App.Vector(33.8, 35, 0), App.Vector(0, 0, 1), 3.5), False)
sketch3.addGeometry(Part.Circle(App.Vector(33.8, 35, 0), App.Vector(0, 0, 1), 1.6), False)
sketch3.addGeometry(Part.Circle(App.Vector(14.2, 35, 0), App.Vector(0, 0, 1), 3.5), False)
sketch3.addGeometry(Part.Circle(App.Vector(14.2, 35, 0), App.Vector(0, 0, 1), 1.6), False)
sketch3.addConstraint(Sketcher.Constraint("Coincident", 1, 3, 0, 3))
sketch3.addConstraint(Sketcher.Constraint("Coincident", 3, 3, 2, 3))
sketch3.addConstraint(Sketcher.Constraint("Coincident", 6, 3, 5, 3))
sketch3.addConstraint(Sketcher.Constraint("Coincident", 8, 3, 7, 3))
sketch3.addConstraint(Sketcher.Constraint("Coincident", 11, 3, 10, 3))
sketch3.addConstraint(Sketcher.Constraint("Coincident", 13, 3, 12, 3))
sketch3.addConstraint(Sketcher.Constraint("Equal", 0, 2))
sketch3.addConstraint(Sketcher.Constraint("Equal", 1, 3))
sketch3.addConstraint(Sketcher.Constraint("Equal", 2, 4))
sketch3.addConstraint(Sketcher.Constraint("Equal", 4, 5))
sketch3.addConstraint(Sketcher.Constraint("Equal", 3, 6))
sketch3.addConstraint(Sketcher.Constraint("Equal", 5, 7))
sketch3.addConstraint(Sketcher.Constraint("Equal", 6, 8))
sketch3.addConstraint(Sketcher.Constraint("Equal", 7, 9))
sketch3.addConstraint(Sketcher.Constraint("Equal", 9, 10))
sketch3.addConstraint(Sketcher.Constraint("Equal", 8, 11))
sketch3.addConstraint(Sketcher.Constraint("Equal", 10, 12))
sketch3.addConstraint(Sketcher.Constraint("Equal", 11, 13))
sketch3.addConstraint(Sketcher.Constraint("Horizontal", 1, 3, 2, 3))
sketch3.addConstraint(Sketcher.Constraint("Horizontal", 3, 3, 4, 3))
sketch3.addConstraint(Sketcher.Constraint("Horizontal", 4, 3, 5, 3))
sketch3.addConstraint(Sketcher.Constraint("Horizontal", 8, 3, 9, 3))
sketch3.addConstraint(Sketcher.Constraint("Horizontal", 9, 3, 10, 3))
sketch3.addConstraint(Sketcher.Constraint("Horizontal", 11, 3, 12, 3))
sketch3.addConstraint(Sketcher.Constraint("Vertical", 1, 3, 7, 3))
sketch3.addConstraint(Sketcher.Constraint("Vertical", 3, 3, 9, 3))
sketch3.addConstraint(Sketcher.Constraint("Vertical", 4, 3, 10, 3))
sketch3.addConstraint(Sketcher.Constraint("Vertical", 6, 3, 12, 3))
sketch3.addConstraint(Sketcher.Constraint("Diameter", 0, Q("7 mm")))
sketch3.addConstraint(Sketcher.Constraint("Diameter", 1, Q("3.2 mm")))
sketch3.addConstraint(Sketcher.Constraint("DistanceY", -1, 1, 0, 3, Q("215 mm")))
sketch3.addConstraint(Sketcher.Constraint("DistanceY", -1, 1, 7, 3, Q("35 mm")))
sketch3.addConstraint(Sketcher.Constraint("DistanceX", 4, 3, 0, 3, Q("87 mm")))
sketch3.addConstraint(Sketcher.Constraint("DistanceX", 5, 3, 2, 3, Q("87 mm")))
sketch3.addConstraint(Sketcher.Constraint("DistanceX", 2, 3, 0, 3, Q("19.5 mm")))
sketch3.addConstraint(Sketcher.Constraint("DistanceX", -1, 1, 0, 3, Q("120.75 mm")))
pocket2 = body.newObject("PartDesign::Pocket", "Pocket001")
pocket2.Profile = sketch3
pocket2.Length = 1.5
pocket2.Reversed = True

# Sketch on XY plane
sketch4 = body.newObject("Sketcher::SketchObject", "Sketch003")
sketch4.AttachmentSupport = (doc.getObject("XY_Plane"), [""])
sketch4.MapMode = "FlatFace"
sketch4.addGeometry(Part.Circle(App.Vector(78.9, 36.1, 0), App.Vector(0, 0, 1), 1.6), False)
sketch4.addGeometry(Part.Circle(App.Vector(56.1, 36.1, 0), App.Vector(0, 0, 1), 1.6), False)
sketch4.addGeometry(Part.Circle(App.Vector(78.9, 213.9, 0), App.Vector(0, 0, 1), 1.6), False)
sketch4.addGeometry(Part.Circle(App.Vector(56.1, 213.9, 0), App.Vector(0, 0, 1), 1.6), False)
sketch4.addConstraint(Sketcher.Constraint("Equal", 0, 1))
sketch4.addConstraint(Sketcher.Constraint("Equal", 1, 2))
sketch4.addConstraint(Sketcher.Constraint("Equal", 2, 3))
sketch4.addConstraint(Sketcher.Constraint("Horizontal", 0, 3, 1, 3))
sketch4.addConstraint(Sketcher.Constraint("Horizontal", 2, 3, 3, 3))
sketch4.addConstraint(Sketcher.Constraint("Vertical", 0, 3, 2, 3))
sketch4.addConstraint(Sketcher.Constraint("Vertical", 1, 3, 3, 3))
sketch4.addConstraint(Sketcher.Constraint("Diameter", 0, Q("3.2 mm")))
sketch4.addConstraint(Sketcher.Constraint("DistanceY", 0, 3, 2, 3, Q("177.8 mm")))
sketch4.addConstraint(Sketcher.Constraint("DistanceX", 1, 3, 0, 3, Q("22.86 mm")))
sketch4.addConstraint(Sketcher.Constraint("DistanceY", -1, 1, 0, 3, Q("36.1 mm")))
sketch4.addConstraint(Sketcher.Constraint("DistanceX", -1, 1, 0, 3, Q("78.93 mm")))
pocket3 = body.newObject("PartDesign::Pocket", "Pocket002")
pocket3.Profile = sketch4
pocket3.Length = 3
pocket3.Reversed = True

# Sketch on XY plane
sketch5 = body.newObject("Sketcher::SketchObject", "Sketch004")
sketch5.AttachmentSupport = (doc.getObject("XY_Plane"), [""])
sketch5.MapMode = "FlatFace"
sketch5.addGeometry(Part.Circle(App.Vector(78.9, 36.1, 0), App.Vector(0, 0, 1), 3.5), False)
sketch5.addGeometry(Part.Circle(App.Vector(56.1, 36.1, 0), App.Vector(0, 0, 1), 3.5), False)
sketch5.addGeometry(Part.Circle(App.Vector(78.9, 213.9, 0), App.Vector(0, 0, 1), 3.5), False)
sketch5.addGeometry(Part.Circle(App.Vector(56.1, 213.9, 0), App.Vector(0, 0, 1), 3.5), False)
sketch5.addConstraint(Sketcher.Constraint("Equal", 0, 1))
sketch5.addConstraint(Sketcher.Constraint("Equal", 1, 2))
sketch5.addConstraint(Sketcher.Constraint("Equal", 2, 3))
sketch5.addConstraint(Sketcher.Constraint("Horizontal", 0, 3, 1, 3))
sketch5.addConstraint(Sketcher.Constraint("Horizontal", 2, 3, 3, 3))
sketch5.addConstraint(Sketcher.Constraint("Vertical", 0, 3, 2, 3))
sketch5.addConstraint(Sketcher.Constraint("Vertical", 1, 3, 3, 3))
sketch5.addConstraint(Sketcher.Constraint("Diameter", 0, Q("7 mm")))
sketch5.addConstraint(Sketcher.Constraint("DistanceY", -1, 1, 0, 3, Q("36.1 mm")))
sketch5.addConstraint(Sketcher.Constraint("DistanceY", -1, 1, 2, 3, Q("213.9 mm")))
sketch5.addConstraint(Sketcher.Constraint("DistanceX", -1, 1, 0, 3, Q("78.93 mm")))
sketch5.addConstraint(Sketcher.Constraint("DistanceX", -1, 1, 1, 3, Q("56.07 mm")))
pocket4 = body.newObject("PartDesign::Pocket", "Pocket003")
pocket4.Profile = sketch5
pocket4.Length = 1.5
pocket4.Reversed = True

doc.recompute()
